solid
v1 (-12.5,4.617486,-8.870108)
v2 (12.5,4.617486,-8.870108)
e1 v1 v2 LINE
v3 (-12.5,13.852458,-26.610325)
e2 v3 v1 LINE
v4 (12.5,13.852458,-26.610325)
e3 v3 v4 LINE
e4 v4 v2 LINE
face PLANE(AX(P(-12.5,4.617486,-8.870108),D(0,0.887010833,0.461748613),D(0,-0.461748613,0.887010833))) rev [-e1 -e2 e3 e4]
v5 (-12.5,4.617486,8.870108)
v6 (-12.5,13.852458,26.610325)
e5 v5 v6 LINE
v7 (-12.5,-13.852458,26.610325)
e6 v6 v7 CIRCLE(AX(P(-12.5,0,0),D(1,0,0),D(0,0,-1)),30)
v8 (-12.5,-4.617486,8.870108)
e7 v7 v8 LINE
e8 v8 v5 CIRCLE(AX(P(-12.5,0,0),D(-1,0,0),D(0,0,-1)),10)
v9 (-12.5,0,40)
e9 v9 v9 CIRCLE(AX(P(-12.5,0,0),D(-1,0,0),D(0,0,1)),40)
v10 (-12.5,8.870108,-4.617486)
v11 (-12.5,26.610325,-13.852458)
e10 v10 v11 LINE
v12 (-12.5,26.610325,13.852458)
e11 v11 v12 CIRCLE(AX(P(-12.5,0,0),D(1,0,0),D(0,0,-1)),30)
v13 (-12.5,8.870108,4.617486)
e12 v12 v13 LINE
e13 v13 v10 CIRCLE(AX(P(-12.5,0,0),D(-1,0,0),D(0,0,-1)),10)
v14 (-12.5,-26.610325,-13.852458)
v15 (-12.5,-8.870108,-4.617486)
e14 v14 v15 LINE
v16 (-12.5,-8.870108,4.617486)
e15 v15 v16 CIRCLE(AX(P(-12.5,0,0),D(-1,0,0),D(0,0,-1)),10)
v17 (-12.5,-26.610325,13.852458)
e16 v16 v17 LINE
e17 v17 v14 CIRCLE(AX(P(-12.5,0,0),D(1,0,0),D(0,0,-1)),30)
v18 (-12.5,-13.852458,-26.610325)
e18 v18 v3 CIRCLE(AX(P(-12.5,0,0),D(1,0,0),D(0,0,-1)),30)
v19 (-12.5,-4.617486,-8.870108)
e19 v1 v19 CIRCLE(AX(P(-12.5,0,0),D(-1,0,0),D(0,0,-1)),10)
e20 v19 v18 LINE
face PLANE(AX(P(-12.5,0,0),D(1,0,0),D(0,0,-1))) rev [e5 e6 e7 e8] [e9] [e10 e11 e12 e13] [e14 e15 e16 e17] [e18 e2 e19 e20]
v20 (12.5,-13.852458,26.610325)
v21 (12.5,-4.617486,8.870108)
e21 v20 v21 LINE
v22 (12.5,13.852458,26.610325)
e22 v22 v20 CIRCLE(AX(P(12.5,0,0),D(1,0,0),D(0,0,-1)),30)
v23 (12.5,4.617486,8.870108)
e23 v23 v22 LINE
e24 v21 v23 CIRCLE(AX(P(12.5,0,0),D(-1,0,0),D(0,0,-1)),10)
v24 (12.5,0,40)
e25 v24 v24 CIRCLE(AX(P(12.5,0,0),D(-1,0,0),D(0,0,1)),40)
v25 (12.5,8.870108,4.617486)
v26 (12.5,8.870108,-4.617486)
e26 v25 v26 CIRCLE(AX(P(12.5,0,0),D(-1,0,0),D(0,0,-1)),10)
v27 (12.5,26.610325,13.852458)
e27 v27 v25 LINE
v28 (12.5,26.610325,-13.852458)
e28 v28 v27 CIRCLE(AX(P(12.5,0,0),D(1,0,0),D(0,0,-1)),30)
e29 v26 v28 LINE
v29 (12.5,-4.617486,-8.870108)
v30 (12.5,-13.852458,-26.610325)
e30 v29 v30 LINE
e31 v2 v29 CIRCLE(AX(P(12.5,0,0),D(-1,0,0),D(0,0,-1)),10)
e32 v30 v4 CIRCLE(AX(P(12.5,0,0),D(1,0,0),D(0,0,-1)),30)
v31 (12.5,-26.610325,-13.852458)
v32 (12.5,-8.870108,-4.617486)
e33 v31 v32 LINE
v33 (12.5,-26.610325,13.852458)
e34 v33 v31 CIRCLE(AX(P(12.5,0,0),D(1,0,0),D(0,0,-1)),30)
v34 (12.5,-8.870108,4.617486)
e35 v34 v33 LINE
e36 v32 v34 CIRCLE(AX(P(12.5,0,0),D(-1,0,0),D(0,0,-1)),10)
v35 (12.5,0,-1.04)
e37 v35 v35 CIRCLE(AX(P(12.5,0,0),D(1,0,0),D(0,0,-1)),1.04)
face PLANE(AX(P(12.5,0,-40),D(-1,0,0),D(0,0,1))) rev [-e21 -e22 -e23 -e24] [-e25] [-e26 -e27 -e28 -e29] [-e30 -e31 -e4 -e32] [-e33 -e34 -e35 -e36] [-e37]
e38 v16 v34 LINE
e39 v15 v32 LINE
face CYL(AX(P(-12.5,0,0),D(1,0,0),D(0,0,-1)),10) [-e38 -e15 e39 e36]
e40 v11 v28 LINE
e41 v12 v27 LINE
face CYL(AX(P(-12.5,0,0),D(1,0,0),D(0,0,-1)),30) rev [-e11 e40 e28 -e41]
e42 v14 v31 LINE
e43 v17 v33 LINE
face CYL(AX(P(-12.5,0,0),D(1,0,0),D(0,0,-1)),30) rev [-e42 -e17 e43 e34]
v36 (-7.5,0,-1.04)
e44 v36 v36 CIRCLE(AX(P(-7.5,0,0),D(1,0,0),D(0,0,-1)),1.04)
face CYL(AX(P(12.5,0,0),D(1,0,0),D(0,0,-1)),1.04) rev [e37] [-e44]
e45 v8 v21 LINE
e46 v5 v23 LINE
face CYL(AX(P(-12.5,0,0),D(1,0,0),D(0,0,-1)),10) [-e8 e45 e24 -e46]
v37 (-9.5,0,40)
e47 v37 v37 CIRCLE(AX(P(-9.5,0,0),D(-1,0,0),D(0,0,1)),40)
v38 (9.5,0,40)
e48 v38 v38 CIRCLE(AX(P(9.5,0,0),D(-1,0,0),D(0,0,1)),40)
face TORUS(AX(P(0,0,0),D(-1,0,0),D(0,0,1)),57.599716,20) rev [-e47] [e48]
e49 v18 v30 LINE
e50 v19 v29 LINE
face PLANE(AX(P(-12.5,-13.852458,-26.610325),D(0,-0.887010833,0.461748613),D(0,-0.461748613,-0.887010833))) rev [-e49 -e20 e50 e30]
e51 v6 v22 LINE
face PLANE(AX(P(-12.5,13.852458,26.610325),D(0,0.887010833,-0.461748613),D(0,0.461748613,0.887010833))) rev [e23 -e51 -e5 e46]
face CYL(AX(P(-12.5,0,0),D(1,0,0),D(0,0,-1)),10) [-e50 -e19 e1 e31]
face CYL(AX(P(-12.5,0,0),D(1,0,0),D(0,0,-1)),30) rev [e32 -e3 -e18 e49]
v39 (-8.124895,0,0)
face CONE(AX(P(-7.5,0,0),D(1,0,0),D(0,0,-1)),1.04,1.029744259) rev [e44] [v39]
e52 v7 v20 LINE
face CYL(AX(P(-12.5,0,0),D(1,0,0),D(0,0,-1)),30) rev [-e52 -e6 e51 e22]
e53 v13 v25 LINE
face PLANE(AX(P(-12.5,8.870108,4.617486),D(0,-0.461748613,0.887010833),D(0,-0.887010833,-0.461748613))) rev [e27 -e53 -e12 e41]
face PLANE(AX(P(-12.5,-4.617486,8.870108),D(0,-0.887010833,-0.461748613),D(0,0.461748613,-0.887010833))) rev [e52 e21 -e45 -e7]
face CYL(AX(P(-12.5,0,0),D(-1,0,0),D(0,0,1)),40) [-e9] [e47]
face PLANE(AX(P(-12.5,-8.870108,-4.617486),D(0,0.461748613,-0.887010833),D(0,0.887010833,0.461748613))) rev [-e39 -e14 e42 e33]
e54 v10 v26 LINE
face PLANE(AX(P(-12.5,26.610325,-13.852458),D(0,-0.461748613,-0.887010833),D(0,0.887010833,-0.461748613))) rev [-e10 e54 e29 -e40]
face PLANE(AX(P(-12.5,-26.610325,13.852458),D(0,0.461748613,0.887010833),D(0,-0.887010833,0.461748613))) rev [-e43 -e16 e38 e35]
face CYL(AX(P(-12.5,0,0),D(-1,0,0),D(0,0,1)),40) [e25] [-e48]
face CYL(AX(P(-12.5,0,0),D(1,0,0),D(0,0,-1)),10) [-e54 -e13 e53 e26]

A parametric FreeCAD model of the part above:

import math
import FreeCAD as App
import Part
import Sketcher

V = App.Vector
Q = App.Units.Quantity

doc = App.newDocument("Part")
body = doc.addObject("PartDesign::Body", "Body")

# Sketch on XZ plane
sketch1 = body.newObject("Sketcher::SketchObject", "Sketch")
sketch1.AttachmentSupport = (doc.getObject("XZ_Plane"), [""])
sketch1.MapMode = "FlatFace"
sketch1.addGeometry([
    Part.LineSegment(V(-12.5, 0, 0), V(12.5, 0, 0)),  # 0
    Part.LineSegment(V(12.5, 0, 0), V(12.5, -40, 0)),  # 1
    Part.LineSegment(V(12.5, -40, 0), V(9.5, -40, 0)),  # 2
    Part.ArcOfCircle(Part.Circle(V(0, -57.6, 0), V(0, 0, 1), 20), math.radians(62), math.radians(118)),  # 3
    Part.LineSegment(V(-9.5, -40, 0), V(-12.5, -40, 0)),  # 4
    Part.LineSegment(V(-12.5, -40, 0), V(-12.5, 0, 0)),  # 5
], False)
sketch1.addConstraint([
    Sketcher.Constraint("Coincident", 0, 2, 1, 1),
    Sketcher.Constraint("Coincident", 1, 2, 2, 1),
    Sketcher.Constraint("Coincident", 2, 2, 3, 1),
    Sketcher.Constraint("Coincident", 3, 2, 4, 1),
    Sketcher.Constraint("Coincident", 4, 2, 5, 1),
    Sketcher.Constraint("Coincident", 5, 2, 0, 1),
    Sketcher.Constraint("Horizontal", 0),
    Sketcher.Constraint("Vertical", 1),
    Sketcher.Constraint("Horizontal", 2),
    Sketcher.Constraint("Horizontal", 4),
    Sketcher.Constraint("Vertical", 5),
    Sketcher.Constraint("Symmetric", 0, 2, 5, 2, -1, 1),
    Sketcher.Constraint("Symmetric", 2, 2, 3, 2, -2),
    Sketcher.Constraint("Radius", 3, Q("20 mm")),
    Sketcher.Constraint("DistanceX", 0, 1, 0, 2, Q("25 mm")),
    Sketcher.Constraint("DistanceX", 2, 2, 2, 1, Q("3 mm")),
    Sketcher.Constraint("DistanceY", 1, 2, 1, 1, Q("40 mm")),
])
revolution = body.newObject("PartDesign::Revolution", "Revolution")
revolution.Profile = sketch1
revolution.ReferenceAxis = (sketch1, ["H_Axis"])
revolution.Angle = 360

# Sketch on YZ plane
sketch2 = body.newObject("Sketcher::SketchObject", "Sketch001")
sketch2.AttachmentSupport = (doc.getObject("YZ_Plane"), [""])
sketch2.MapMode = "FlatFace"
sketch2.AttachmentOffset = App.Placement(V(0, 0, 12.5), App.Rotation())
sketch2.addGeometry([
    Part.LineSegment(V(27, 14, 0), V(9, 5, 0)),  # 0
    Part.ArcOfCircle(Part.Circle(V(0, 0, 0), V(0, 0, 1), 10), math.radians(-27), math.radians(27)),  # 1
    Part.LineSegment(V(9, -5, 0), V(27, -14, 0)),  # 2
    Part.ArcOfCircle(Part.Circle(V(0, 0, 0), V(0, 0, 1), 30), math.radians(-28), math.radians(28)),  # 3
    Part.LineSegment(V(-5, -9, 0), V(-14, -27, 0)),  # 4
    Part.ArcOfCircle(Part.Circle(V(0, 0, 0), V(0, 0, 1), 30), math.radians(-118), math.radians(-62)),  # 5
    Part.LineSegment(V(14, -27, 0), V(5, -9, 0)),  # 6
    Part.ArcOfCircle(Part.Circle(V(0, 0, 0), V(0, 0, 1), 10), math.radians(-117), math.radians(-63)),  # 7
    Part.LineSegment(V(-9, 5, 0), V(-27, 14, 0)),  # 8
    Part.ArcOfCircle(Part.Circle(V(0, 0, 0), V(0, 0, 1), 30), math.radians(152), math.radians(208)),  # 9
    Part.LineSegment(V(-27, -14, 0), V(-9, -5, 0)),  # 10
    Part.ArcOfCircle(Part.Circle(V(0, 0, 0), V(0, 0, 1), 10), math.radians(153), math.radians(207)),  # 11
    Part.LineSegment(V(5, 9, 0), V(14, 27, 0)),  # 12
    Part.ArcOfCircle(Part.Circle(V(0, 0, 0), V(0, 0, 1), 30), math.radians(62), math.radians(118)),  # 13
    Part.LineSegment(V(-14, 27, 0), V(-5, 9, 0)),  # 14
    Part.ArcOfCircle(Part.Circle(V(0, 0, 0), V(0, 0, 1), 10), math.radians(63), math.radians(117)),  # 15
], False)
sketch2.addConstraint([
    Sketcher.Constraint("Coincident", 0, 2, 1, 2),
    Sketcher.Constraint("Coincident", 1, 1, 2, 1),
    Sketcher.Constraint("Coincident", 2, 2, 3, 1),
    Sketcher.Constraint("Coincident", 3, 2, 0, 1),
    Sketcher.Constraint("Coincident", 4, 2, 5, 1),
    Sketcher.Constraint("Coincident", 5, 2, 6, 1),
    Sketcher.Constraint("Coincident", 6, 2, 7, 2),
    Sketcher.Constraint("Coincident", 7, 1, 4, 1),
    Sketcher.Constraint("Coincident", 8, 2, 9, 1),
    Sketcher.Constraint("Coincident", 9, 2, 10, 1),
    Sketcher.Constraint("Coincident", 10, 2, 11, 2),
    Sketcher.Constraint("Coincident", 11, 1, 8, 1),
    Sketcher.Constraint("Coincident", 12, 2, 13, 1),
    Sketcher.Constraint("Coincident", 13, 2, 14, 1),
    Sketcher.Constraint("Coincident", 14, 2, 15, 2),
    Sketcher.Constraint("Coincident", 15, 1, 12, 1),
    Sketcher.Constraint("Coincident", 1, 3, -1, 1),
    Sketcher.Constraint("Coincident", 3, 3, -1, 1),
    Sketcher.Constraint("Coincident", 5, 3, -1, 1),
    Sketcher.Constraint("Coincident", 7, 3, -1, 1),
    Sketcher.Constraint("Coincident", 9, 3, -1, 1),
    Sketcher.Constraint("Coincident", 11, 3, -1, 1),
    Sketcher.Constraint("Coincident", 13, 3, -1, 1),
    Sketcher.Constraint("Coincident", 15, 3, -1, 1),
    Sketcher.Constraint("Equal", 3, 5),
    Sketcher.Constraint("Equal", 1, 7),
    Sketcher.Constraint("Equal", 5, 9),
    Sketcher.Constraint("Equal", 7, 11),
    Sketcher.Constraint("Equal", 9, 13),
    Sketcher.Constraint("Equal", 11, 15),
    Sketcher.Constraint("Perpendicular", 2, 4),
    Sketcher.Constraint("Perpendicular", 0, 6),
    Sketcher.Constraint("Perpendicular", 4, 8),
    Sketcher.Constraint("Perpendicular", 6, 10),
    Sketcher.Constraint("Perpendicular", 8, 12),
    Sketcher.Constraint("Perpendicular", 10, 14),
    Sketcher.Constraint("Horizontal", 4, 2, 5, 2),
    Sketcher.Constraint("Horizontal", 6, 2, 7, 1),
    Sketcher.Constraint("Horizontal", 3, 2, 8, 2),
    Sketcher.Constraint("Horizontal", 2, 2, 9, 2),
    Sketcher.Constraint("Horizontal", 12, 2, 13, 2),
    Sketcher.Constraint("Vertical", 0, 2, 1, 1),
    Sketcher.Constraint("Vertical", 5, 2, 12, 2),
    Sketcher.Constraint("Radius", 1, Q("10 mm")),
    Sketcher.Constraint("Radius", 3, Q("30 mm")),
    Sketcher.Constraint("Angle", 0, Q("-152.5 deg")),
    Sketcher.Constraint("DistanceX", -1, 1, 0, 2, Q("8.870108 mm")),
    Sketcher.Constraint("DistanceX", 4, 2, -1, 1, Q("13.852458 mm")),
])
pocket1 = body.newObject("PartDesign::Pocket", "Pocket")
pocket1.Profile = sketch2
pocket1.Type = "ThroughAll"

# Sketch on YZ plane
sketch3 = body.newObject("Sketcher::SketchObject", "Sketch002")
sketch3.AttachmentSupport = (doc.getObject("YZ_Plane"), [""])
sketch3.MapMode = "FlatFace"
sketch3.AttachmentOffset = App.Placement(V(0, 0, 12.5), App.Rotation())
sketch3.addGeometry(Part.Circle(V(0, 0, 0), V(0, 0, 1), 1), False)
sketch3.addConstraint([
    Sketcher.Constraint("Coincident", 0, 3, -1, 1),
    Sketcher.Constraint("Diameter", 0, Q("2.08 mm")),
])
doc.recompute()
hole = body.newObject("PartDesign::Hole", "Hole")
hole.Profile = sketch3
hole.ThreadType = "None"
hole.Diameter = 2.08
hole.DepthType = "Dimension"
hole.Depth = 20
hole.DrillPoint = "Angled"
hole.DrillPointAngle = 118

doc.recompute()
